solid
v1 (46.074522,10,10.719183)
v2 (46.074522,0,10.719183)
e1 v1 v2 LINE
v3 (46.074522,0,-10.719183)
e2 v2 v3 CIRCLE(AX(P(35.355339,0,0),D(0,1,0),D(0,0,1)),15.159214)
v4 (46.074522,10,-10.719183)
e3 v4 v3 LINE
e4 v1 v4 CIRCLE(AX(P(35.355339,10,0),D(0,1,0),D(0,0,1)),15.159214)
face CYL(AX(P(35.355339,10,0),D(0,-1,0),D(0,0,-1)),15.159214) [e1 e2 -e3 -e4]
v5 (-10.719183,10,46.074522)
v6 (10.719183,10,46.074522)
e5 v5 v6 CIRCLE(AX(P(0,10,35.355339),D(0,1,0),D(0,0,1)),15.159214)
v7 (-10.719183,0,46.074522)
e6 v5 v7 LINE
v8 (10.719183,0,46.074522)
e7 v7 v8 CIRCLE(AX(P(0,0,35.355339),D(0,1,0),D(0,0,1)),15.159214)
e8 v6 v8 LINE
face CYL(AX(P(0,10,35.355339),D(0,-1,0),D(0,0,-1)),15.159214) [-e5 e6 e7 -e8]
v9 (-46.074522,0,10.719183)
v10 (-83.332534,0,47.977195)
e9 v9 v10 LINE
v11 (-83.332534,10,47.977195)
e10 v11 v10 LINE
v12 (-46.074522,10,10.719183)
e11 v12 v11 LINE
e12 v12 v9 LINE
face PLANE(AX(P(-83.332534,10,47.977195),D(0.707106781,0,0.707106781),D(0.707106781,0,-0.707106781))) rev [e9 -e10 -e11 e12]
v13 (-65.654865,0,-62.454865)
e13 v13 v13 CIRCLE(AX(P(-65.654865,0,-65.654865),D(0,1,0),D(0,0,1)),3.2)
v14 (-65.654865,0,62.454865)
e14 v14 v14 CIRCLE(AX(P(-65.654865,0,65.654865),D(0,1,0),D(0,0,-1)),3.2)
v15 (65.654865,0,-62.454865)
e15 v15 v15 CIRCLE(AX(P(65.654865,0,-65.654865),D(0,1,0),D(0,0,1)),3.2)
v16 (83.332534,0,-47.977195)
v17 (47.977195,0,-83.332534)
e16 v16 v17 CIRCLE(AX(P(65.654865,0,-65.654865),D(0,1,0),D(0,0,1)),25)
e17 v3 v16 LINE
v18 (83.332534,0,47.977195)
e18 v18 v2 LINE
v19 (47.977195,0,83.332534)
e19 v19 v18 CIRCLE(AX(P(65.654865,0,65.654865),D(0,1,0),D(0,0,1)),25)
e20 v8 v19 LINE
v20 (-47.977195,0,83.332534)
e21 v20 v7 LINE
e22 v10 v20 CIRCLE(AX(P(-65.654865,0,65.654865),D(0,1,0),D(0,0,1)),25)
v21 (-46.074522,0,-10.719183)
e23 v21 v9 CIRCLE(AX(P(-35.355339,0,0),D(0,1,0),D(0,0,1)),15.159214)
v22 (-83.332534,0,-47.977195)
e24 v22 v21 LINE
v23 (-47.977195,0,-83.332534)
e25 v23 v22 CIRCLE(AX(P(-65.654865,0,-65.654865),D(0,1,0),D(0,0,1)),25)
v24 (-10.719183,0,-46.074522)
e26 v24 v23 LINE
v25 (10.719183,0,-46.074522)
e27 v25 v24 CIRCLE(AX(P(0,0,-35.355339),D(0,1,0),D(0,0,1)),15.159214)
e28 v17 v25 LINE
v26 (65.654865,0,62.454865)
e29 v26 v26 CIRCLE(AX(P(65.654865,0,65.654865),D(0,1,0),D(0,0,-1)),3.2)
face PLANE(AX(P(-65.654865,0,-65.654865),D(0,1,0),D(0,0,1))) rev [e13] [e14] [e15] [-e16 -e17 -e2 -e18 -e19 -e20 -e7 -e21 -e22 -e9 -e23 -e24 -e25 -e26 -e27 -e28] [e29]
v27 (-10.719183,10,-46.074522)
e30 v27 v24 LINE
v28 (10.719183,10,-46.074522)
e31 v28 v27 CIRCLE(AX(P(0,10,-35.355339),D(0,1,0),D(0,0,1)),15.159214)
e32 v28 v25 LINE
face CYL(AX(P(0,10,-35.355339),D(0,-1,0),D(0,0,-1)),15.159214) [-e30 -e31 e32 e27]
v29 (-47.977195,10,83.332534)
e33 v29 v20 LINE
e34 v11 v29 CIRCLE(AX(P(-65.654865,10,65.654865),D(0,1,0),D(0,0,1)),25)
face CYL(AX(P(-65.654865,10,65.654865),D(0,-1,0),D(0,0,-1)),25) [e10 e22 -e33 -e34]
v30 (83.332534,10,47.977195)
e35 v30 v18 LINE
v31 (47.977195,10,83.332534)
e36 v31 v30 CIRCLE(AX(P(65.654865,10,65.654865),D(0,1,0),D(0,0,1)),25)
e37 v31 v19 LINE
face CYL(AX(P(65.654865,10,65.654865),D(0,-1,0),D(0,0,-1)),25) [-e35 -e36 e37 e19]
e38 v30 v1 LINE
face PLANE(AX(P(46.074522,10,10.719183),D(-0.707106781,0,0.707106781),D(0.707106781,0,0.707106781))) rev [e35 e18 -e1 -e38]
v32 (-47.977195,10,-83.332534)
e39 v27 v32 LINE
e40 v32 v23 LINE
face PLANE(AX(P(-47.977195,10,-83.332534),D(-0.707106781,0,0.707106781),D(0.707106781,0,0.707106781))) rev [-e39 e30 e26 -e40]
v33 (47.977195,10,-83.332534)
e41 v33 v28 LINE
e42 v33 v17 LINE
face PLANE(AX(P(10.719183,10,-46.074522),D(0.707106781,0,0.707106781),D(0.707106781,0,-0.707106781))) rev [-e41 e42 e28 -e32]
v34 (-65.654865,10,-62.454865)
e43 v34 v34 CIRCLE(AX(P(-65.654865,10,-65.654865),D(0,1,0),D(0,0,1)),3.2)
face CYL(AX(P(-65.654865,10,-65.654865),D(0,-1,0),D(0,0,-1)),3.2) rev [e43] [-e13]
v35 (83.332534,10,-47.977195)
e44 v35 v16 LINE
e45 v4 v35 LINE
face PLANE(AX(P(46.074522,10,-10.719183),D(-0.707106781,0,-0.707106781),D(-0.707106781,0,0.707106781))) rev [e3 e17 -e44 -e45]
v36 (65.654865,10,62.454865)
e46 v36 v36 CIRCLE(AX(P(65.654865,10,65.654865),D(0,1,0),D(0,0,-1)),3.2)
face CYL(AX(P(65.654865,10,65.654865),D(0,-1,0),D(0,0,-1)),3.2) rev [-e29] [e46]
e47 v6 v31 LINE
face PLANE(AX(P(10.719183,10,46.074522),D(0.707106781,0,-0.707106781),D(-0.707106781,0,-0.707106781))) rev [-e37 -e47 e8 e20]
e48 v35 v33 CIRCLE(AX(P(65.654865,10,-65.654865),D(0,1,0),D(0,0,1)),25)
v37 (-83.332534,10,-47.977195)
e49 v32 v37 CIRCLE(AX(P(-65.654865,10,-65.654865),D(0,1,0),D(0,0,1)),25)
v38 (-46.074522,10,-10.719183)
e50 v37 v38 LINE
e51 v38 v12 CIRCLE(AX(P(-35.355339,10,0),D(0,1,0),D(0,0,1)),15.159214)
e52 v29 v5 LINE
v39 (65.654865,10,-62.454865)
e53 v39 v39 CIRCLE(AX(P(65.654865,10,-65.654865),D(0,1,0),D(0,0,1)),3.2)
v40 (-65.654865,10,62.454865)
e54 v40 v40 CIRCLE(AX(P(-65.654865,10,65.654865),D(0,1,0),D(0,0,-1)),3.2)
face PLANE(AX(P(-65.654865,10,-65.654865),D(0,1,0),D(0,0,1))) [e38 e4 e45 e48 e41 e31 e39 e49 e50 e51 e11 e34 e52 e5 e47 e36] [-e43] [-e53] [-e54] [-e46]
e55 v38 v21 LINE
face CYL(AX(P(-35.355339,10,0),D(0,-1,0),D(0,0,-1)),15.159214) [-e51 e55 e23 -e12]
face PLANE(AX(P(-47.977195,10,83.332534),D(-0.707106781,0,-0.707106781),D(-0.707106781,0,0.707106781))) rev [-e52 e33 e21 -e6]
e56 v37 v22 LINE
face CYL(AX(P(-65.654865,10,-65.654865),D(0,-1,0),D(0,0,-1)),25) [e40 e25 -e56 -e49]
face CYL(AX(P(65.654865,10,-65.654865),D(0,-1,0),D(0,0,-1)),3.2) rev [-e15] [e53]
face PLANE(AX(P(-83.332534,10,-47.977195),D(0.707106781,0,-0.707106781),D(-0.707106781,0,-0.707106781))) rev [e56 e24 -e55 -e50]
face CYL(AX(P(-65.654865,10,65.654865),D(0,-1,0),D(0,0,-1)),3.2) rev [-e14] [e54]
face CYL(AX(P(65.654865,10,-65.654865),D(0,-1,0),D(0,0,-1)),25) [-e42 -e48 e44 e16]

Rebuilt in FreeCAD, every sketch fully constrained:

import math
import FreeCAD as App
import Part
import Sketcher

V = App.Vector

doc = App.newDocument("Part")
params = doc.addObject("Spreadsheet::Sheet", "Params")
for row, (alias, value) in enumerate([
    ("sketch1_radius", "25 mm"),
    ("sketch1_diameter", "6.4 mm"),
    ("pad1_length", "10 mm"),
], start=1):
    params.set(f"A{row}", alias)
    params.set(f"B{row}", "=" + value)
    params.setAlias(f"B{row}", alias)

body = doc.addObject("PartDesign::Body", "Body")

# Sketch on XZ plane
sketch1 = doc.addObject("Sketcher::SketchObject", "Sketch")
body.addObject(sketch1)
sketch1.AttachmentSupport = (doc.XZ_Plane, [""])
sketch1.MapMode = "FlatFace"
sketch1.addGeometry([
    Part.LineSegment(V(-10.7, -46.1, 0), V(-48, -83.3, 0)),  # 0
    Part.ArcOfCircle(Part.Circle(V(-65.7, -65.7, 0), V(0, 0, 1), 25), math.radians(135), math.radians(315)),  # 1
    Part.LineSegment(V(-83.3, -48, 0), V(-46.1, -10.7, 0)),  # 2
    Part.ArcOfCircle(Part.Circle(V(-35.4, 0, 0), V(0, 0, 1), 15.2), math.radians(135), math.radians(225)),  # 3
    Part.LineSegment(V(-46.1, 10.7, 0), V(-83.3, 48, 0)),  # 4
    Part.ArcOfCircle(Part.Circle(V(-65.7, 65.7, 0), V(0, 0, 1), 25), math.radians(45), math.radians(225)),  # 5
    Part.LineSegment(V(-48, 83.3, 0), V(-10.7, 46.1, 0)),  # 6
    Part.ArcOfCircle(Part.Circle(V(0, 35.4, 0), V(0, 0, 1), 15.2), math.radians(45), math.radians(135)),  # 7
    Part.LineSegment(V(10.7, 46.1, 0), V(48, 83.3, 0)),  # 8
    Part.ArcOfCircle(Part.Circle(V(65.7, 65.7, 0), V(0, 0, 1), 25), math.radians(-45), math.radians(135)),  # 9
    Part.LineSegment(V(83.3, 48, 0), V(46.1, 10.7, 0)),  # 10
    Part.ArcOfCircle(Part.Circle(V(35.4, 0, 0), V(0, 0, 1), 15.2), math.radians(-45), math.radians(45)),  # 11
    Part.LineSegment(V(46.1, -10.7, 0), V(83.3, -48, 0)),  # 12
    Part.ArcOfCircle(Part.Circle(V(65.7, -65.7, 0), V(0, 0, 1), 25), math.radians(-135), math.radians(45)),  # 13
    Part.LineSegment(V(48, -83.3, 0), V(10.7, -46.1, 0)),  # 14
    Part.ArcOfCircle(Part.Circle(V(0, -35.4, 0), V(0, 0, 1), 15.2), math.radians(-135), math.radians(-45)),  # 15
    Part.Circle(V(65.7, 65.7, 0), V(0, 0, 1), 3.2),  # 16
    Part.Circle(V(-65.7, 65.7, 0), V(0, 0, 1), 3.2),  # 17
    Part.Circle(V(65.7, -65.7, 0), V(0, 0, 1), 3.2),  # 18
    Part.Circle(V(-65.7, -65.7, 0), V(0, 0, 1), 3.2),  # 19
], False)
sketch1.addConstraint([
    Sketcher.Constraint("Tangent", 0, 2, 1, 2),
    Sketcher.Constraint("Tangent", 1, 1, 2, 1),
    Sketcher.Constraint("Coincident", 2, 2, 3, 2),
    Sketcher.Constraint("Coincident", 3, 1, 4, 1),
    Sketcher.Constraint("Tangent", 4, 2, 5, 2),
    Sketcher.Constraint("Tangent", 5, 1, 6, 1),
    Sketcher.Constraint("Coincident", 6, 2, 7, 2),
    Sketcher.Constraint("Coincident", 7, 1, 8, 1),
    Sketcher.Constraint("Tangent", 8, 2, 9, 2),
    Sketcher.Constraint("Tangent", 9, 1, 10, 1),
    Sketcher.Constraint("Coincident", 10, 2, 11, 2),
    Sketcher.Constraint("Coincident", 11, 1, 12, 1),
    Sketcher.Constraint("Tangent", 12, 2, 13, 2),
    Sketcher.Constraint("Tangent", 13, 1, 14, 1),
    Sketcher.Constraint("Coincident", 14, 2, 15, 2),
    Sketcher.Constraint("Coincident", 15, 1, 0, 1),
    Sketcher.Constraint("Coincident", 16, 3, 9, 3),
    Sketcher.Constraint("Coincident", 17, 3, 5, 3),
    Sketcher.Constraint("Coincident", 18, 3, 13, 3),
    Sketcher.Constraint("Coincident", 19, 3, 1, 3),
    Sketcher.Constraint("Equal", 1, 5),
    Sketcher.Constraint("Equal", 3, 7),
    Sketcher.Constraint("Equal", 5, 9),
    Sketcher.Constraint("Equal", 7, 11),
    Sketcher.Constraint("Equal", 9, 13),
    Sketcher.Constraint("Equal", 11, 15),
    Sketcher.Constraint("Equal", 16, 17),
    Sketcher.Constraint("Equal", 17, 18),
    Sketcher.Constraint("Equal", 18, 19),
    Sketcher.Constraint("Symmetric", 1, 3, 9, 3, -1, 1),
    Sketcher.Constraint("Symmetric", 3, 3, 11, 3, -1, 1),
    Sketcher.Constraint("Symmetric", 5, 3, 13, 3, -1, 1),
    Sketcher.Constraint("Symmetric", 7, 3, 15, 3, -1, 1),
    Sketcher.Constraint("Symmetric", 5, 3, 9, 3, -2),
    Sketcher.Constraint("Symmetric", 6, 2, 7, 1, -2),
    Sketcher.Constraint("Symmetric", 3, 1, 10, 2, -2),
    Sketcher.Constraint("Parallel", 0, 2),
    Sketcher.Constraint("Perpendicular", 2, 4),
    Sketcher.Constraint("Parallel", 4, 6),
    Sketcher.Constraint("Perpendicular", 6, 8),
    Sketcher.Constraint("Perpendicular", 10, 12),
    Sketcher.Constraint("Parallel", 12, 14),
    Sketcher.Constraint("Equal", 0, 2),
    Sketcher.Constraint("Radius", 1, 25.0),
    Sketcher.Constraint("Diameter", 16, 6.4),
    Sketcher.Constraint("Radius", 3, 15.159214),
    Sketcher.Constraint("DistanceX", 3, 3, -1, 1, 35.355339),
    Sketcher.Constraint("DistanceY", 1, 3, 5, 3, 131.309729),
    Sketcher.Constraint("DistanceX", 5, 3, 9, 3, 131.309729),
])
sketch1.setExpression("Constraints[43]", "Params.sketch1_radius")
sketch1.setExpression("Constraints[44]", "Params.sketch1_diameter")
pad1 = doc.addObject("PartDesign::Pad", "Pad")
body.addObject(pad1)
pad1.Profile = sketch1
pad1.setExpression("Length", "Params.pad1_length")
pad1.Reversed = True

doc.recompute()
